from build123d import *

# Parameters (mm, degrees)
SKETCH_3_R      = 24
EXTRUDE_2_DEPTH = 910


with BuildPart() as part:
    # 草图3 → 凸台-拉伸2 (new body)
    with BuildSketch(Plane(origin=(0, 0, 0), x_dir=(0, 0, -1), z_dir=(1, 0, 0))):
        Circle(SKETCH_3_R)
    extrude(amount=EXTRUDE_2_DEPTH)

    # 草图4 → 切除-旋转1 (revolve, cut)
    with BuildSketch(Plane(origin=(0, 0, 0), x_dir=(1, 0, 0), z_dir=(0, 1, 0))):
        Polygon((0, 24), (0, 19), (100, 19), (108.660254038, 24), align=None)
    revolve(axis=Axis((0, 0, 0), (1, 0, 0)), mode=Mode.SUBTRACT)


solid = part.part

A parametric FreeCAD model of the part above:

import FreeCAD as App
import Part
import Sketcher

V = App.Vector
Q = App.Units.Quantity


def add_polygon(sketch, points):
    """Adds a closed chain of lines whose ends are joined by coincident constraints."""
    first, n = sketch.GeometryCount, len(points)
    for a, b in zip(points, points[1:] + points[:1]):
        sketch.addGeometry(Part.LineSegment(App.Vector(*a, 0), App.Vector(*b, 0)), False)
    for i in range(n):
        sketch.addConstraint(Sketcher.Constraint("Coincident", first + i, 2, first + (i + 1) % n, 1))

doc = App.newDocument("Part")
params = doc.addObject("Spreadsheet::Sheet", "Params")
for row, (alias, value) in enumerate([
    ("sketch1_diameter", "48 mm"),
    ("pad1_length", "910 mm"),
    ("sketch2_width", "100 mm"),
    ("sketch2_height", "5 mm"),
    ("groove_angle", "360 deg"),
], start=1):
    params.set(f"A{row}", alias)
    params.set(f"B{row}", "=" + value)
    params.setAlias(f"B{row}", alias)

body = doc.addObject("PartDesign::Body", "Body")

sketch1 = body.newObject("Sketcher::SketchObject", "Sketch")
sketch1.AttachmentSupport = (doc.getObject("YZ_Plane"), [""])
sketch1.MapMode = "FlatFace"
sketch1.addGeometry(Part.Circle(V(0, 0, 0), V(0, 0, 1), 24), False)
sketch1.addConstraint([
    Sketcher.Constraint("Coincident", 0, 3, -1, 1),
    Sketcher.Constraint("Diameter", 0, 48.0),
])
sketch1.setExpression("Constraints[1]", "Params.sketch1_diameter")
pad1 = body.newObject("PartDesign::Pad", "Pad")
pad1.Profile = sketch1
pad1.setExpression("Length", "Params.pad1_length")

sketch2 = body.newObject("Sketcher::SketchObject", "Sketch001")
sketch2.AttachmentSupport = (doc.getObject("XZ_Plane"), [""])
sketch2.MapMode = "FlatFace"
add_polygon(sketch2, [(0, -24), (0, -19), (100, -19), (109, -24)])
sketch2.addConstraint([
    Sketcher.Constraint("Vertical", 0),
    Sketcher.Constraint("Horizontal", 1),
    Sketcher.Constraint("Horizontal", 3),
    Sketcher.Constraint("PointOnObject", 0, 2, -2),
    Sketcher.Constraint("DistanceX", 1, 1, 1, 2, 100.0),
    Sketcher.Constraint("DistanceY", 0, 1, 0, 2, 5.0),
    Sketcher.Constraint("Angle", 2, Q("-30 deg")),
    Sketcher.Constraint("DistanceY", 0, 2, -1, 1, 19.0),
])
sketch2.setExpression("Constraints[8]", "Params.sketch2_width")
sketch2.setExpression("Constraints[9]", "Params.sketch2_height")
groove = body.newObject("PartDesign::Groove", "Groove")
groove.Profile = sketch2
groove.ReferenceAxis = (sketch2, ["H_Axis"])
groove.setExpression("Angle", "Params.groove_angle")

doc.recompute()
